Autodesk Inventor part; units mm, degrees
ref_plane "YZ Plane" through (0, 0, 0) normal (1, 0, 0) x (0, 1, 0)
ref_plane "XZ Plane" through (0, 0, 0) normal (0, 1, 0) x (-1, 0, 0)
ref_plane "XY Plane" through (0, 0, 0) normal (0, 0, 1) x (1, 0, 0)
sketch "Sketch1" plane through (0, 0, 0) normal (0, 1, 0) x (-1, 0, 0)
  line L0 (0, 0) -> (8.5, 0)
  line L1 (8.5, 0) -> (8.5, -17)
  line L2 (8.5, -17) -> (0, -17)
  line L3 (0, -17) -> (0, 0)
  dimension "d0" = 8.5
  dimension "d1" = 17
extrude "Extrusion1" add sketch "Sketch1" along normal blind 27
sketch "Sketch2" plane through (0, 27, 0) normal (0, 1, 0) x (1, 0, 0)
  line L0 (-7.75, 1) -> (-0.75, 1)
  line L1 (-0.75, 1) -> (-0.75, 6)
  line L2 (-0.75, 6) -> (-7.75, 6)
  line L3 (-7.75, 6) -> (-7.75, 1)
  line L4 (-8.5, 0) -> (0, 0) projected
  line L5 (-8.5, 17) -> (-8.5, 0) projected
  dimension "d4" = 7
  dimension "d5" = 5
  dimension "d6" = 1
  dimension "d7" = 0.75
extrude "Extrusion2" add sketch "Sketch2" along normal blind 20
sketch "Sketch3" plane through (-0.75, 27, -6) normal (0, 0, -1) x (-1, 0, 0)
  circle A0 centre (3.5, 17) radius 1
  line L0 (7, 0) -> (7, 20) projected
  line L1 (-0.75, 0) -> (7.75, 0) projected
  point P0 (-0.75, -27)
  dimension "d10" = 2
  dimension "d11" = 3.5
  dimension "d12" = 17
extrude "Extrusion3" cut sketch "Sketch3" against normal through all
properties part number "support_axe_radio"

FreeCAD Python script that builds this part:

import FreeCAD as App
import Part
import Sketcher

V = App.Vector
Q = App.Units.Quantity

doc = App.newDocument("Part")
params = doc.addObject("Spreadsheet::Sheet", "Params")
for row, (alias, value) in enumerate([
    ("sketch1_height", "17 mm"),
    ("sketch1_width", "8.5 mm"),
    ("pad1_length", "27 mm"),
    ("sketch2_width", "7 mm"),
    ("sketch2_height", "5 mm"),
    ("pad2_length", "20 mm"),
    ("sketch3_diameter", "2 mm"),
], start=1):
    params.set(f"A{row}", alias)
    params.set(f"B{row}", "=" + value)
    params.setAlias(f"B{row}", alias)

body = doc.addObject("PartDesign::Body", "Body")

# Sketch on XZ plane
sketch1 = body.newObject("Sketcher::SketchObject", "Sketch")
sketch1.AttachmentSupport = (doc.getObject("XZ_Plane"), [""])
sketch1.MapMode = "FlatFace"
sketch1.addGeometry(Part.LineSegment(V(-8.5, 0, 0), V(0, 0, 0)), False)
sketch1.addGeometry(Part.LineSegment(V(0, 0, 0), V(0, -17, 0)), False)
sketch1.addGeometry(Part.LineSegment(V(0, -17, 0), V(-8.5, -17, 0)), False)
sketch1.addGeometry(Part.LineSegment(V(-8.5, -17, 0), V(-8.5, 0, 0)), False)
sketch1.addConstraint(Sketcher.Constraint("Coincident", 0, 2, 1, 1))
sketch1.addConstraint(Sketcher.Constraint("Coincident", 1, 2, 2, 1))
sketch1.addConstraint(Sketcher.Constraint("Coincident", 2, 2, 3, 1))
sketch1.addConstraint(Sketcher.Constraint("Coincident", 3, 2, 0, 1))
sketch1.addConstraint(Sketcher.Constraint("Horizontal", 0))
sketch1.addConstraint(Sketcher.Constraint("Vertical", 1))
sketch1.addConstraint(Sketcher.Constraint("Horizontal", 2))
sketch1.addConstraint(Sketcher.Constraint("Vertical", 3))
sketch1.addConstraint(Sketcher.Constraint("Coincident", 0, 2, -1, 1))
sketch1.addConstraint(Sketcher.Constraint("DistanceY", 1, 2, 1, 1, Q("17 mm")))
sketch1.addConstraint(Sketcher.Constraint("DistanceX", 0, 1, 0, 2, Q("8.5 mm")))
sketch1.setExpression("Constraints[9]", "Params.sketch1_height")
sketch1.setExpression("Constraints[10]", "Params.sketch1_width")
pad1 = body.newObject("PartDesign::Pad", "Pad")
pad1.Profile = sketch1
pad1.setExpression("Length", "Params.pad1_length")
pad1.Reversed = True

# Sketch on XZ plane
sketch2 = body.newObject("Sketcher::SketchObject", "Sketch001")
sketch2.AttachmentSupport = (doc.getObject("XZ_Plane"), [""])
sketch2.MapMode = "FlatFace"
sketch2.AttachmentOffset = App.Placement(V(0, 0, -27), App.Rotation())
sketch2.addGeometry(Part.LineSegment(V(-7.75, -6, 0), V(-7.75, -1, 0)), False)
sketch2.addGeometry(Part.LineSegment(V(-7.75, -1, 0), V(-0.75, -1, 0)), False)
sketch2.addGeometry(Part.LineSegment(V(-0.75, -1, 0), V(-0.75, -6, 0)), False)
sketch2.addGeometry(Part.LineSegment(V(-0.75, -6, 0), V(-7.75, -6, 0)), False)
sketch2.addConstraint(Sketcher.Constraint("Coincident", 0, 2, 1, 1))
sketch2.addConstraint(Sketcher.Constraint("Coincident", 1, 2, 2, 1))
sketch2.addConstraint(Sketcher.Constraint("Coincident", 2, 2, 3, 1))
sketch2.addConstraint(Sketcher.Constraint("Coincident", 3, 2, 0, 1))
sketch2.addConstraint(Sketcher.Constraint("Vertical", 0))
sketch2.addConstraint(Sketcher.Constraint("Horizontal", 1))
sketch2.addConstraint(Sketcher.Constraint("Vertical", 2))
sketch2.addConstraint(Sketcher.Constraint("Horizontal", 3))
sketch2.addConstraint(Sketcher.Constraint("DistanceX", 1, 1, 1, 2, Q("7 mm")))
sketch2.addConstraint(Sketcher.Constraint("DistanceY", 0, 1, 0, 2, Q("5 mm")))
sketch2.addConstraint(Sketcher.Constraint("DistanceY", 0, 2, -1, 1, Q("1 mm")))
sketch2.addConstraint(Sketcher.Constraint("DistanceX", 1, 2, -1, 1, Q("0.75 mm")))
sketch2.setExpression("Constraints[8]", "Params.sketch2_width")
sketch2.setExpression("Constraints[9]", "Params.sketch2_height")
pad2 = body.newObject("PartDesign::Pad", "Pad001")
pad2.Profile = sketch2
pad2.setExpression("Length", "Params.pad2_length")
pad2.Reversed = True

# Sketch on XY plane
sketch3 = body.newObject("Sketcher::SketchObject", "Sketch002")
sketch3.AttachmentSupport = (doc.getObject("XY_Plane"), [""])
sketch3.MapMode = "FlatFace"
sketch3.AttachmentOffset = App.Placement(V(0, 0, -6), App.Rotation())
sketch3.addGeometry(Part.Circle(V(-4.25, 44, 0), V(0, 0, 1), 1), False)
sketch3.addConstraint(Sketcher.Constraint("Diameter", 0, Q("2 mm")))
sketch3.addConstraint(Sketcher.Constraint("DistanceY", -1, 1, 0, 3, Q("44 mm")))
sketch3.addConstraint(Sketcher.Constraint("DistanceX", 0, 3, -1, 1, Q("4.25 mm")))
sketch3.setExpression("Constraints[0]", "Params.sketch3_diameter")
pocket1 = body.newObject("PartDesign::Pocket", "Pocket")
pocket1.Profile = sketch3
pocket1.Type = "ThroughAll"
pocket1.Reversed = True

doc.recompute()
